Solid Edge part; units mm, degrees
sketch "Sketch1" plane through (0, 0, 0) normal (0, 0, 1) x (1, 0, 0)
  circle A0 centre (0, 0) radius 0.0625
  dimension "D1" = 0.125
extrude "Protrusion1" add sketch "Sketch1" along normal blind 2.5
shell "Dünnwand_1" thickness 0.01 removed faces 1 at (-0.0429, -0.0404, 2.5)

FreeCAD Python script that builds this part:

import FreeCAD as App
import Part
import Sketcher
from FreeCAD import Vector
Q = App.Units.Quantity


def faces_at(feature, points):
    """Names of the faces that lie closest to the given points."""
    faces = feature.Shape.Faces
    near = lambda p: min(range(len(faces)), key=lambda i: faces[i].distToShape(Part.Vertex(*p))[0])
    return sorted({f"Face{near(p) + 1}" for p in points})

doc = App.newDocument("Part")
params = doc.addObject("Spreadsheet::Sheet", "Params")
for row, (alias, value) in enumerate([
    ("pad1_length", "2.5 mm"),
    ("thickness_wall", "0.01 mm"),
], start=1):
    params.set(f"A{row}", alias)
    params.set(f"B{row}", "=" + value)
    params.setAlias(f"B{row}", alias)

body = doc.addObject("PartDesign::Body", "Body")

sketch1 = body.newObject("Sketcher::SketchObject", "Sketch")
sketch1.AttachmentSupport = (doc.getObject("XY_Plane"), [""])
sketch1.MapMode = "FlatFace"
sketch1.addGeometry(Part.Circle(Vector(0, 0, 0), Vector(0, 0, 1), 0.0625), False)
sketch1.addConstraint([
    Sketcher.Constraint("Coincident", 0, 3, -1, 1),
    Sketcher.Constraint("Diameter", 0, Q("0.125 mm")),
])
pad1 = body.newObject("PartDesign::Pad", "Pad")
pad1.Profile = sketch1
pad1.setExpression("Length", "Params.pad1_length")
doc.recompute()

thickness = body.newObject("PartDesign::Thickness", "Thickness")
thickness.Base = (pad1, faces_at(pad1, [(-0.043, -0.04, 2.5)]))
thickness.setExpression("Value", "Params.thickness_wall")
thickness.Reversed = True
thickness.Join = "Intersection"

doc.recompute()
